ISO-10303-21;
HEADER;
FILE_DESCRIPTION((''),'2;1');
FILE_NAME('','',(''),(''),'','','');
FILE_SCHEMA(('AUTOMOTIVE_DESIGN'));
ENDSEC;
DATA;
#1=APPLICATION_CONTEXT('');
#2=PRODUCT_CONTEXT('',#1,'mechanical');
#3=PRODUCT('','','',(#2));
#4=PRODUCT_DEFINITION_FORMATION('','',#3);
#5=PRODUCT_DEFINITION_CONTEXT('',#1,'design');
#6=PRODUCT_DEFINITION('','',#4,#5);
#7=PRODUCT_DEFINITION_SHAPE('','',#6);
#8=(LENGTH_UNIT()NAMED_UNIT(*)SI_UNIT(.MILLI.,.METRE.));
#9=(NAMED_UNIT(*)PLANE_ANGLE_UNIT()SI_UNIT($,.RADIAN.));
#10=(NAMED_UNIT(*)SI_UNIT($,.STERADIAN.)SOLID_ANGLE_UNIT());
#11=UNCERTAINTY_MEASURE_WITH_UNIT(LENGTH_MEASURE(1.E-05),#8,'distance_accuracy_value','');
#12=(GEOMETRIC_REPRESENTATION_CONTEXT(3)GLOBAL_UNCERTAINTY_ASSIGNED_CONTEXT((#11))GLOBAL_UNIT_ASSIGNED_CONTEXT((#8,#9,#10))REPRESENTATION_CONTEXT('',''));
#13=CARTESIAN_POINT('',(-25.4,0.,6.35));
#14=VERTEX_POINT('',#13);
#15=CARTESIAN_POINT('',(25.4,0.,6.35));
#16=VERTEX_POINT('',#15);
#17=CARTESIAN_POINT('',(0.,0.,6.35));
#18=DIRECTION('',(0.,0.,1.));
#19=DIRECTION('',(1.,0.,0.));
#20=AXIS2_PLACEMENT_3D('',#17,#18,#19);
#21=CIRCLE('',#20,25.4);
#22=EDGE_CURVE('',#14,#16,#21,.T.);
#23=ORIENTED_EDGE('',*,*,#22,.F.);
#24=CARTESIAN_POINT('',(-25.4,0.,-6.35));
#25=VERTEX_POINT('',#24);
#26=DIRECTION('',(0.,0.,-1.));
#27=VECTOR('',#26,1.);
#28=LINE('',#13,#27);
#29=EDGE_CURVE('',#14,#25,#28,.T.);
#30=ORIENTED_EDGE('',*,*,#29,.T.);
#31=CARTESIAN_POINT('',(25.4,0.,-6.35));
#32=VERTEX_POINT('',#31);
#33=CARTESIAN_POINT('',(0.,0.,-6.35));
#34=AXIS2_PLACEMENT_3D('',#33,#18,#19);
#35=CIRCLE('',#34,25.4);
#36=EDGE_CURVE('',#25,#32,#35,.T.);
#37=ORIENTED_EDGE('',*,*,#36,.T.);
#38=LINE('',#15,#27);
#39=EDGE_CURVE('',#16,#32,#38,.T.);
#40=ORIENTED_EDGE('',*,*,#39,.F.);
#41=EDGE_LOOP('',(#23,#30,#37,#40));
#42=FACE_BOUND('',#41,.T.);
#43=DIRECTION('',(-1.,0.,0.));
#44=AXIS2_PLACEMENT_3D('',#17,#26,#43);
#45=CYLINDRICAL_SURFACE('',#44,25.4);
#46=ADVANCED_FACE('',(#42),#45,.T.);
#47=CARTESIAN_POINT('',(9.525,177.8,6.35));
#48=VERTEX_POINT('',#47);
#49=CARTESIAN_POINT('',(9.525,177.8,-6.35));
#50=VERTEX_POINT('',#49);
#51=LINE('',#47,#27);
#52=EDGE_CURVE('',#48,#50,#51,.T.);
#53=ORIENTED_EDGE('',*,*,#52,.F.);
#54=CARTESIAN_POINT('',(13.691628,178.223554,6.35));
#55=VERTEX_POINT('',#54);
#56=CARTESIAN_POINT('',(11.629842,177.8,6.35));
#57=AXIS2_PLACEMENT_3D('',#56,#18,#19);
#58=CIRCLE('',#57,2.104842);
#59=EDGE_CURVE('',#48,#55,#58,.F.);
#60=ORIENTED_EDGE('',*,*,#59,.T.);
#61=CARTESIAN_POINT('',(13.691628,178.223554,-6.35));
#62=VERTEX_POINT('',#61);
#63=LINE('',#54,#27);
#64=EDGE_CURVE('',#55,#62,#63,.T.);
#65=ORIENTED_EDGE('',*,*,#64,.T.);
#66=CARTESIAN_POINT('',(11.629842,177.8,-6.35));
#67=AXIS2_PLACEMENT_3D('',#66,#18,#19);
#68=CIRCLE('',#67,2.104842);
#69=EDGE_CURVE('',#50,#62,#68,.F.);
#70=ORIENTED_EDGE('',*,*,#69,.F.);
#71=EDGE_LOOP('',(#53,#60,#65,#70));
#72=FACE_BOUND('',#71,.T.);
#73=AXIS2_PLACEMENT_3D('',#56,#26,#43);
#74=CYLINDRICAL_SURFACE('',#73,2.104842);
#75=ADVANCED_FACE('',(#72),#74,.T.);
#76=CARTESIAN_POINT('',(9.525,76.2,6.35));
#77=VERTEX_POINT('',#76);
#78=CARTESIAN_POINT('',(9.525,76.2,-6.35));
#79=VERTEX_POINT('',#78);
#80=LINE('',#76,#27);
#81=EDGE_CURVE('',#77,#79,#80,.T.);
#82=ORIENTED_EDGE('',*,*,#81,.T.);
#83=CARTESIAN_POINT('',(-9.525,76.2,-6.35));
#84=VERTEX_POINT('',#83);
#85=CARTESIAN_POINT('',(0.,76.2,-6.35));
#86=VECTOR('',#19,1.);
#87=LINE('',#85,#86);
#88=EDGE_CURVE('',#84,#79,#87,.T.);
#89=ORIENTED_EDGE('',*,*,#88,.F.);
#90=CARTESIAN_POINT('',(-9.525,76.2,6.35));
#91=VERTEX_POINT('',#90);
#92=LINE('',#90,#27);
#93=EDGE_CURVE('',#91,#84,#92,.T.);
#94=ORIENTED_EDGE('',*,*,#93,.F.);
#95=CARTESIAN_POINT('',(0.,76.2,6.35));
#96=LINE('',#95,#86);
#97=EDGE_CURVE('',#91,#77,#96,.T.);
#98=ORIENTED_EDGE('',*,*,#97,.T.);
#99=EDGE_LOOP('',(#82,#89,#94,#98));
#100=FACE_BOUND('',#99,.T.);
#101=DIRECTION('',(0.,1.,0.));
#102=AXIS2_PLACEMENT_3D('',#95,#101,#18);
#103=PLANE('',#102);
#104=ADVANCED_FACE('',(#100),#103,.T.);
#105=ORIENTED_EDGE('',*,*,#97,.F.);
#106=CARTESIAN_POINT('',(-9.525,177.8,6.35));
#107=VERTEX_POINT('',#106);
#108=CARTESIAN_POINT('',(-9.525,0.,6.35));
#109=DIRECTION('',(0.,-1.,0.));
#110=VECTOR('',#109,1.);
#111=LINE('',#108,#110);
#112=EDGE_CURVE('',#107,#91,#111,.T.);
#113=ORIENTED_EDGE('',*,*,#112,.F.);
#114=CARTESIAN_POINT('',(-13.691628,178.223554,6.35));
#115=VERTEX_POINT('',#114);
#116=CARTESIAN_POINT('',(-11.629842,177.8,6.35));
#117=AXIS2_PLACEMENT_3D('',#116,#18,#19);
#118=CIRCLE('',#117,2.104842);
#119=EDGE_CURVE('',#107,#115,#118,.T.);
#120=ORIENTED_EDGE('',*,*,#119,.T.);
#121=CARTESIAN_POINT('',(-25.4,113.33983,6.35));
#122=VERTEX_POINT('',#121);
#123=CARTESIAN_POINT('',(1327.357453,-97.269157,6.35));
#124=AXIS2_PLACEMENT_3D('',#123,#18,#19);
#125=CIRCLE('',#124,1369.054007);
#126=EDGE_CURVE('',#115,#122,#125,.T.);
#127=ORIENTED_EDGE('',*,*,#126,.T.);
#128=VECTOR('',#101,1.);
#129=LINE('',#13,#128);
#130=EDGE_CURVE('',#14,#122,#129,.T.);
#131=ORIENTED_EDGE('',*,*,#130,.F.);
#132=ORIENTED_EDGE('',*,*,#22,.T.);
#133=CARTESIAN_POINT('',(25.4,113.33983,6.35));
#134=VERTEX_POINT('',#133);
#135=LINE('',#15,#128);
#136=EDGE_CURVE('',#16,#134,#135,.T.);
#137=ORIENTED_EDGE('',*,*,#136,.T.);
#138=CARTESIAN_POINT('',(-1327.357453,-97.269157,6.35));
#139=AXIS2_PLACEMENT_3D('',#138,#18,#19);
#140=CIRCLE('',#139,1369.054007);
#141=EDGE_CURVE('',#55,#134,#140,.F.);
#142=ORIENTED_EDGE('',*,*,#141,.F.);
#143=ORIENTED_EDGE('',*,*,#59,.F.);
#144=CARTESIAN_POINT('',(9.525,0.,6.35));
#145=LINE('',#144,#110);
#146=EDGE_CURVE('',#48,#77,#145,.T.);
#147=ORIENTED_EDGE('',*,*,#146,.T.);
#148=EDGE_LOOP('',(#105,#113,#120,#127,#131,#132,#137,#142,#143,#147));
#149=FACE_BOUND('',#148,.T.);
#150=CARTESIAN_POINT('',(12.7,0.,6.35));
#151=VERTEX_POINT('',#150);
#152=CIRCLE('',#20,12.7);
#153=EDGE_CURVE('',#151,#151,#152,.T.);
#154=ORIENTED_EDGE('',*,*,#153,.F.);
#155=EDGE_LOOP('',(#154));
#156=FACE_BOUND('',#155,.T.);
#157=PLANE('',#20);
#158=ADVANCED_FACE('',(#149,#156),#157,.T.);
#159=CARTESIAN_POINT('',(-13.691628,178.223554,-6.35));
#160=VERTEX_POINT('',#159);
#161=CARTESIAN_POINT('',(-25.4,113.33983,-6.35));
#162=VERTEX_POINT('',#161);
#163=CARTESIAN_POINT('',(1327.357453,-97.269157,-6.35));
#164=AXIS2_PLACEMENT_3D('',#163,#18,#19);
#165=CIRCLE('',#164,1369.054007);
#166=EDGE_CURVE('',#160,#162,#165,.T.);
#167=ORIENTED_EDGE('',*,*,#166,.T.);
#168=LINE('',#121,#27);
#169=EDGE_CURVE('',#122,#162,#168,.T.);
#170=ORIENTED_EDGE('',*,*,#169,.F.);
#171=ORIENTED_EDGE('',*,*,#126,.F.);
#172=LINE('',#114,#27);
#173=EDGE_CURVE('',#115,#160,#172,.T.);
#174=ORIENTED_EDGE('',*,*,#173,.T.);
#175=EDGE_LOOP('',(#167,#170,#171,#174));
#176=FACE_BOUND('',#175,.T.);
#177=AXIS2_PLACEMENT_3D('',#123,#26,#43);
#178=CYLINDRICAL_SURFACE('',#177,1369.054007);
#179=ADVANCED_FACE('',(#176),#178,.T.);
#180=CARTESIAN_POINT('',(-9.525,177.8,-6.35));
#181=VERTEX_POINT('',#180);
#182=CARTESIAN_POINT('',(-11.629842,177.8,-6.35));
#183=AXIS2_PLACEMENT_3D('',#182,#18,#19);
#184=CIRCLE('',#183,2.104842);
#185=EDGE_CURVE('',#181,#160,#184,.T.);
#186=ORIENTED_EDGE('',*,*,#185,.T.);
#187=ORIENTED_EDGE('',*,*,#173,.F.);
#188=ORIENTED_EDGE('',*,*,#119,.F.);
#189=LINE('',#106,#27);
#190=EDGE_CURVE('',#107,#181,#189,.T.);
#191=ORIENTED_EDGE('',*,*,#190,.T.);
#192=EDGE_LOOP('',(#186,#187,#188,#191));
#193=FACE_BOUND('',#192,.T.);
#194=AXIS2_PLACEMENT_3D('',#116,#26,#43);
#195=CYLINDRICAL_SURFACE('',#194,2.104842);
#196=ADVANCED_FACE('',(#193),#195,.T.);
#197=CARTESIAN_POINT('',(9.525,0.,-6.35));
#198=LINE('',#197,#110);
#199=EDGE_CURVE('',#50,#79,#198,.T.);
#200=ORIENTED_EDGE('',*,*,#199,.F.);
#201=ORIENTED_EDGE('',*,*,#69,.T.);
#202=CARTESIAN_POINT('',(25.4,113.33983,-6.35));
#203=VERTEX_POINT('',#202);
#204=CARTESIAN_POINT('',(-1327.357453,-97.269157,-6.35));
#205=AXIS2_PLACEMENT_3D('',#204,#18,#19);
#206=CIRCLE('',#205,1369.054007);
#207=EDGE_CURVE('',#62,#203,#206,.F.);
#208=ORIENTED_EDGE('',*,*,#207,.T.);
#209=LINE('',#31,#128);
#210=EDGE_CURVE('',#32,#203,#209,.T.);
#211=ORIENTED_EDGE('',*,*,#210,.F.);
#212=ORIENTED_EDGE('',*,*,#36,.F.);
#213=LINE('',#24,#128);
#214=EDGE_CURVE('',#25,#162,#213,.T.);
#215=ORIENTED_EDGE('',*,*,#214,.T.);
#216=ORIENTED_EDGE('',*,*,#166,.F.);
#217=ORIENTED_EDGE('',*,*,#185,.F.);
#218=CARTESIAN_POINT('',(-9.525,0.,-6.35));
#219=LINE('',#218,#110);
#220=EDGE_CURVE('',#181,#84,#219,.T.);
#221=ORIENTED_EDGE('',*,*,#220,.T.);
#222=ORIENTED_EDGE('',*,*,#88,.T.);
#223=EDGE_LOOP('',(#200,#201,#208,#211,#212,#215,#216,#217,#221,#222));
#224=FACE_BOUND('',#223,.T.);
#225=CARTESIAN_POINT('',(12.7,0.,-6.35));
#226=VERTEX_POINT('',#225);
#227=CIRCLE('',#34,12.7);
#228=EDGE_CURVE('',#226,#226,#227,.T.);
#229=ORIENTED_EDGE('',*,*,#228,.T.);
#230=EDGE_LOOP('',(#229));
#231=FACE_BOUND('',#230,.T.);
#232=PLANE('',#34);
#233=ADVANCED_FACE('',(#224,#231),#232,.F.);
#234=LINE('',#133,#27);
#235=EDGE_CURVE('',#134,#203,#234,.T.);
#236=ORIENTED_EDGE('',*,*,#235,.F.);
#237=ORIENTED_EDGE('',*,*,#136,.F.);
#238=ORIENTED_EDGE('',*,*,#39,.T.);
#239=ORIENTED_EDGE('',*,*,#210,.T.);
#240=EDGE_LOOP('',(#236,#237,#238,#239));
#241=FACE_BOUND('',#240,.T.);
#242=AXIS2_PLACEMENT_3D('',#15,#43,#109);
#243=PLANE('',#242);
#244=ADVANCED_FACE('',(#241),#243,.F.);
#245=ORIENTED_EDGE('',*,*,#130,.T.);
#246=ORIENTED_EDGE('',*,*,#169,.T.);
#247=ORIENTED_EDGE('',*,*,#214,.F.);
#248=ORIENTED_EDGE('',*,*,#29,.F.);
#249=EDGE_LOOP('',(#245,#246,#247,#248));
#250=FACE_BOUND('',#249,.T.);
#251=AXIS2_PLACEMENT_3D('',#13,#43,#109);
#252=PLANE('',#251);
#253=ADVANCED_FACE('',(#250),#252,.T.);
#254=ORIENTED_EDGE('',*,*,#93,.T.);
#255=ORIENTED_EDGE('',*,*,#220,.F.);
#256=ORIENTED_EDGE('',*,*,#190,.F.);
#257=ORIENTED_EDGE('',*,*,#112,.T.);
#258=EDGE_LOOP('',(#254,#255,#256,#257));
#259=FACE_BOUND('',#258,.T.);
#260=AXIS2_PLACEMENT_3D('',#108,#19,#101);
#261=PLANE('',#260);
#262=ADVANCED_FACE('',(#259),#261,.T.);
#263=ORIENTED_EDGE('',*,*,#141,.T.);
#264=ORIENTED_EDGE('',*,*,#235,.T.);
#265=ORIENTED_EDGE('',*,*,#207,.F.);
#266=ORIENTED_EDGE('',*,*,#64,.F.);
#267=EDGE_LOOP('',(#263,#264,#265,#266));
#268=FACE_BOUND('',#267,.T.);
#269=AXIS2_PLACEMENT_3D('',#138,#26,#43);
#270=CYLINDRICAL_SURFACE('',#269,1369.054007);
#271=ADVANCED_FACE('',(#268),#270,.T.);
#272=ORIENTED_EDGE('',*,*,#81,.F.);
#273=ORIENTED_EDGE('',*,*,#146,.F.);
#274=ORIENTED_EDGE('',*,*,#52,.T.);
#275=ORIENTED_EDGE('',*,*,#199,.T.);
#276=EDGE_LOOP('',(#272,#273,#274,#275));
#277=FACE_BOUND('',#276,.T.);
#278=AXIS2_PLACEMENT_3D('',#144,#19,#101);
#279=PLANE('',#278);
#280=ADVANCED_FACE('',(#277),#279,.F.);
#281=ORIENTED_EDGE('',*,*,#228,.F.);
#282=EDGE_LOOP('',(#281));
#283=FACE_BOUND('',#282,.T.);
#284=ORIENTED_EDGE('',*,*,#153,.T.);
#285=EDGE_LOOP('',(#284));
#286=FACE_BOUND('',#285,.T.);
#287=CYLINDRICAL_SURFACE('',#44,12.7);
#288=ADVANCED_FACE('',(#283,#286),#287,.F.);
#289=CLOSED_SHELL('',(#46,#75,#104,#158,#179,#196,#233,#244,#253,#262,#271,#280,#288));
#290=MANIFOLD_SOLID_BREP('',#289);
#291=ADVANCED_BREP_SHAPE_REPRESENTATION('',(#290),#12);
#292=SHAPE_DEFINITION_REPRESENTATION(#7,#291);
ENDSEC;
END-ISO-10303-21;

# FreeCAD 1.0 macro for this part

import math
import FreeCAD as App
import Part
import Sketcher

V = App.Vector
Q = App.Units.Quantity

doc = App.newDocument("Part")
params = doc.addObject("Spreadsheet::Sheet", "Params")
for row, (alias, value) in enumerate([
    ("sketch1_diameter", "1 in"),
    ("sketch1_radius", "1 in"),
    ("sketch1_height", "4 in"),
    ("sketch1_width", "0.75 in"),
    ("pad1_length", "0.5 in"),
], start=1):
    params.set(f"A{row}", alias)
    params.set(f"B{row}", "=" + value)
    params.setAlias(f"B{row}", alias)

body = doc.addObject("PartDesign::Body", "Body")

# Sketch on XY plane
sketch1 = body.newObject("Sketcher::SketchObject", "Sketch")
sketch1.AttachmentSupport = (doc.getObject("XY_Plane"), [""])
sketch1.MapMode = "FlatFace"
sketch1.addGeometry([
    Part.LineSegment(V(-9.5, 76.2, 0), V(-9.5, 177.8, 0)),  # 0
    Part.ArcOfCircle(Part.Circle(V(-11.6, 177.8, 0), V(0, 0, 1), 2.1), math.radians(0), math.radians(168)),  # 1
    Part.ArcOfCircle(Part.Circle(V(1327.4, -97.3, 0), V(0, 0, 1), 1369.1), math.radians(168.39), math.radians(170.82)),  # 2
    Part.ArcOfCircle(Part.Circle(V(1327.4, -97.3, 0), V(0, 0, 1), 1369.1), math.radians(170.82), math.radians(171.15)),  # 3
    Part.LineSegment(V(-25.4, 113.3, 0), V(-25.4, 0, 0)),  # 4
    Part.ArcOfCircle(Part.Circle(V(0, 0, 0), V(0, 0, 1), 25.4), math.radians(180), math.radians(360)),  # 5
    Part.LineSegment(V(25.4, 0, 0), V(25.4, 113.3, 0)),  # 6
    Part.ArcOfCircle(Part.Circle(V(-1327.4, -97.3, 0), V(0, 0, 1), 1369.1), math.radians(8.85), math.radians(9.18)),  # 7
    Part.ArcOfCircle(Part.Circle(V(-1327.4, -97.3, 0), V(0, 0, 1), 1369.1), math.radians(9.18), math.radians(11.61)),  # 8
    Part.ArcOfCircle(Part.Circle(V(11.6, 177.8, 0), V(0, 0, 1), 2.1), math.radians(12), math.radians(180)),  # 9
    Part.LineSegment(V(9.5, 177.8, 0), V(9.5, 76.2, 0)),  # 10
    Part.LineSegment(V(9.5, 76.2, 0), V(-9.5, 76.2, 0)),  # 11
    Part.Circle(V(0, 0, 0), V(0, 0, 1), 12.7),  # 12
], False)
sketch1.addConstraint([
    Sketcher.Constraint("Tangent", 0, 2, 1, 1),
    Sketcher.Constraint("Tangent", 1, 2, 2, 1),
    Sketcher.Constraint("Coincident", 2, 2, 3, 1),
    Sketcher.Constraint("Coincident", 3, 2, 4, 1),
    Sketcher.Constraint("Tangent", 4, 2, 5, 1),
    Sketcher.Constraint("Tangent", 5, 2, 6, 1),
    Sketcher.Constraint("Coincident", 6, 2, 7, 1),
    Sketcher.Constraint("Coincident", 7, 2, 8, 1),
    Sketcher.Constraint("Tangent", 8, 2, 9, 1),
    Sketcher.Constraint("Tangent", 9, 2, 10, 1),
    Sketcher.Constraint("Coincident", 10, 2, 11, 1),
    Sketcher.Constraint("Coincident", 11, 2, 0, 1),
    Sketcher.Constraint("Vertical", 0),
    Sketcher.Constraint("Vertical", 4),
    Sketcher.Constraint("Vertical", 6),
    Sketcher.Constraint("Vertical", 10),
    Sketcher.Constraint("Horizontal", 11),
    Sketcher.Constraint("Coincident", 5, 3, -1, 1),
    Sketcher.Constraint("Coincident", 12, 3, -1, 1),
    Sketcher.Constraint("Equal", 3, 7),
    Sketcher.Constraint("Equal", 2, 8),
    Sketcher.Constraint("Equal", 1, 9),
    Sketcher.Constraint("Symmetric", 3, 3, 7, 3, -2),
    Sketcher.Constraint("Symmetric", 1, 3, 9, 3, -2),
    Sketcher.Constraint("Horizontal", 2, 2, 7, 2),
    Sketcher.Constraint("Diameter", 12, Q("1 in")),
    Sketcher.Constraint("Radius", 5, Q("1 in")),
    Sketcher.Constraint("DistanceY", 0, 1, 0, 2, Q("4 in")),
    Sketcher.Constraint("DistanceY", -1, 1, 1, 3, Q("7 in")),
    Sketcher.Constraint("DistanceX", 11, 2, 11, 1, Q("0.75 in")),
    Sketcher.Constraint("Radius", 2, Q("1369.054009 mm")),
    Sketcher.Constraint("Radius", 3, Q("1369.054082 mm")),
    Sketcher.Constraint("Radius", 1, Q("2.104842 mm")),
    Sketcher.Constraint("DistanceY", 4, 2, 4, 1, Q("113.33983 mm")),
    Sketcher.Constraint("DistanceY", 3, 3, -1, 1, Q("97.269169 mm")),
    Sketcher.Constraint("DistanceX", 2, 2, -1, 1, Q("24.152492 mm")),
])
sketch1.setExpression("Constraints[25]", "Params.sketch1_diameter")
sketch1.setExpression("Constraints[26]", "Params.sketch1_radius")
sketch1.setExpression("Constraints[27]", "Params.sketch1_height")
sketch1.setExpression("Constraints[29]", "Params.sketch1_width")
pad1 = body.newObject("PartDesign::Pad", "Pad")
pad1.Profile = sketch1
pad1.setExpression("Length", "Params.pad1_length")
pad1.Midplane = True

doc.recompute()
